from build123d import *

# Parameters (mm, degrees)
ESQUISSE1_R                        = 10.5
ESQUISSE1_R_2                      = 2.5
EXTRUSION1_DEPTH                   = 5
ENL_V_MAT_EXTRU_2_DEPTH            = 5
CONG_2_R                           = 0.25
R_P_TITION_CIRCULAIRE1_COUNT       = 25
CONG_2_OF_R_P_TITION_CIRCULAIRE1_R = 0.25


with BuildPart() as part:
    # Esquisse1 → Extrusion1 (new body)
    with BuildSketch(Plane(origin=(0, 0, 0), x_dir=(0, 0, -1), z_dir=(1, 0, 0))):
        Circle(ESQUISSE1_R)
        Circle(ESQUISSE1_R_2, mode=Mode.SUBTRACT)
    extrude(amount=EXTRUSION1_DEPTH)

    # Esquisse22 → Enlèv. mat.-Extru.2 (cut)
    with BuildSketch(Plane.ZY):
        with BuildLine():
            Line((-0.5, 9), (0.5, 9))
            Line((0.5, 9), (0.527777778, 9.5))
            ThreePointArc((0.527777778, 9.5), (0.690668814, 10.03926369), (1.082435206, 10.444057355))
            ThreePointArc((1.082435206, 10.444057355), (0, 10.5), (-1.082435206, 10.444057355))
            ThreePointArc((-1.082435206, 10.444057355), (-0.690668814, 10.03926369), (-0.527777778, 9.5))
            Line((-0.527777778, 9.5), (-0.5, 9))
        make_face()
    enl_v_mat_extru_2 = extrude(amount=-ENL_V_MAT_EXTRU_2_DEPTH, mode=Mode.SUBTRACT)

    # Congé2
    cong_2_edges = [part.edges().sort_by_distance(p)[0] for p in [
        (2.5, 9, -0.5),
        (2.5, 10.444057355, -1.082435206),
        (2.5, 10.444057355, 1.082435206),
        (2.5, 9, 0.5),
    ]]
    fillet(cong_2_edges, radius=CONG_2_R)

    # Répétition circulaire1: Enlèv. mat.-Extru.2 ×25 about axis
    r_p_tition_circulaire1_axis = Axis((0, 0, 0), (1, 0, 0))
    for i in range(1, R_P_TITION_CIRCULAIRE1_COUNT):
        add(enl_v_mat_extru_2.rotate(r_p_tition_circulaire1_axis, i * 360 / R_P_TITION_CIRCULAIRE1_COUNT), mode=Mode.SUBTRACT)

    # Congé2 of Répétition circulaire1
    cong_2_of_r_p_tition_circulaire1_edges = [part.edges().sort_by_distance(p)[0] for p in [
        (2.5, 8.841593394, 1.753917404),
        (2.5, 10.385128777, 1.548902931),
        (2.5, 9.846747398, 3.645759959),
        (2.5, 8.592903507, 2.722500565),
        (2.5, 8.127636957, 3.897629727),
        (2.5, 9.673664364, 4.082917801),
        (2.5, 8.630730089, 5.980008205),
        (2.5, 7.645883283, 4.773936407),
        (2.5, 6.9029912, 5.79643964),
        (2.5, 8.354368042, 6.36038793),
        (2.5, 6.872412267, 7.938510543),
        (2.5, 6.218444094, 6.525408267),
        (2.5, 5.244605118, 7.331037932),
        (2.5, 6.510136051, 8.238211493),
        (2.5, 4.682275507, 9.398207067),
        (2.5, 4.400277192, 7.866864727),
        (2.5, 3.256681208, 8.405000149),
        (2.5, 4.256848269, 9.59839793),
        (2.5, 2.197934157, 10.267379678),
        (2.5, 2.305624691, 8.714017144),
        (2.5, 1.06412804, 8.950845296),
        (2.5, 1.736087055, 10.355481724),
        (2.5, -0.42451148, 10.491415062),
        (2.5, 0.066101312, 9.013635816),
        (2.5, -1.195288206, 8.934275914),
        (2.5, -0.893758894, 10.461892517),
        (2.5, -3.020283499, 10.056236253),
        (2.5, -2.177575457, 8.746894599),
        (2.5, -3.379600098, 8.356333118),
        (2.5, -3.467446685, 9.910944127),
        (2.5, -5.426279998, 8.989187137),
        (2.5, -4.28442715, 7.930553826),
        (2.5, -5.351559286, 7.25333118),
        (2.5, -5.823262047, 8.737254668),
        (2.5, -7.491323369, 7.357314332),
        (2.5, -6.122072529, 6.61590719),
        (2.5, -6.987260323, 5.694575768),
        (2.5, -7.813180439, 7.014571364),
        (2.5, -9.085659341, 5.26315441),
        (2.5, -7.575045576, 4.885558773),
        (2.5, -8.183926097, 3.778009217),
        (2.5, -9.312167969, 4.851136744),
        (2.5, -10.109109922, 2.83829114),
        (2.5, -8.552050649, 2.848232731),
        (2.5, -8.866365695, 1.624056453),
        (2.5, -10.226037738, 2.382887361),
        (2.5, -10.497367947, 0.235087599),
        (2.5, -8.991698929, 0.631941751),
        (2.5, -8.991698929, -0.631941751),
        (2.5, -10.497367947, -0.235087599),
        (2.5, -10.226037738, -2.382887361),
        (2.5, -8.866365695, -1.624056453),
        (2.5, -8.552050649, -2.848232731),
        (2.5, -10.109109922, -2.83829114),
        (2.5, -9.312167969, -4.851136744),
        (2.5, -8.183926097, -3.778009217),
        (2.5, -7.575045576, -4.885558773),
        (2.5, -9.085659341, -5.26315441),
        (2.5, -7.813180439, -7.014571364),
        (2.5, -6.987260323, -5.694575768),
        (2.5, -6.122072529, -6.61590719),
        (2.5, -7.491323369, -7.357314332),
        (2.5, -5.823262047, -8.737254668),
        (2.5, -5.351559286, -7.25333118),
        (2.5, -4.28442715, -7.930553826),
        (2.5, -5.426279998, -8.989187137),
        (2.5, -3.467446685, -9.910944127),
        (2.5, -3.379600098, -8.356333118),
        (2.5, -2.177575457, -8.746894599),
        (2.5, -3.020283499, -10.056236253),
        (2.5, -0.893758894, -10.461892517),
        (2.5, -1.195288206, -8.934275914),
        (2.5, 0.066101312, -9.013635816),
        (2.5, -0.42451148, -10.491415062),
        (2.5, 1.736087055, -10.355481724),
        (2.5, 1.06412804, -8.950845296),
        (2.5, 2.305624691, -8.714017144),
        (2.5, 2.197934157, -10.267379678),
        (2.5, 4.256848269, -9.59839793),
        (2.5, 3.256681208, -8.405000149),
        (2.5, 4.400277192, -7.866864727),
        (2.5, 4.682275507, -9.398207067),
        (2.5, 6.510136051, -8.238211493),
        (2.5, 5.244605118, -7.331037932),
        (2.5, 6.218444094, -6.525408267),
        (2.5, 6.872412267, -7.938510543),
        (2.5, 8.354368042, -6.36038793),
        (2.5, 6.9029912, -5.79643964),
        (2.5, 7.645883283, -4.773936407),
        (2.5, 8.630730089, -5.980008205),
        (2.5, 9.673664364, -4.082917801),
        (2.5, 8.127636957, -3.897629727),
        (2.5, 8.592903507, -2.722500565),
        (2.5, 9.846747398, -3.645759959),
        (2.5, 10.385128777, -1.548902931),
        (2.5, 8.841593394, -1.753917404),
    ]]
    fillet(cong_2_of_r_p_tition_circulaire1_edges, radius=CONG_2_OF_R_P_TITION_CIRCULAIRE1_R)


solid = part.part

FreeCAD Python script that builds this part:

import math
import FreeCAD as App
import Part
import Sketcher


def edges_at(feature, points):
    """Names of the edges that pass closest to the given points."""
    edges = feature.Shape.Edges
    near = lambda p: min(range(len(edges)), key=lambda i: edges[i].distToShape(Part.Vertex(*p))[0])
    return sorted({f"Edge{near(p) + 1}" for p in points})

doc = App.newDocument("Part")
body = doc.addObject("PartDesign::Body", "Body")

# Sketch on YZ plane
sketch1 = body.newObject("Sketcher::SketchObject", "Sketch")
sketch1.AttachmentSupport = (doc.getObject("YZ_Plane"), [""])
sketch1.MapMode = "FlatFace"
sketch1.addGeometry([
    Part.Circle(App.Vector(0, 0, 0), App.Vector(0, 0, 1), 10.5),
    Part.Circle(App.Vector(0, 0, 0), App.Vector(0, 0, 1), 2.5),
], False)
sketch1.addConstraint([
    Sketcher.Constraint("Coincident", 0, 3, -1, 1),
    Sketcher.Constraint("Coincident", 1, 3, -1, 1),
    Sketcher.Constraint("Diameter", 0, 21.0),
    Sketcher.Constraint("Diameter", 1, 5.0),
])
pad1 = body.newObject("PartDesign::Pad", "Pad")
pad1.Profile = sketch1
pad1.Length = 5

# Sketch on YZ plane
sketch2 = body.newObject("Sketcher::SketchObject", "Sketch001")
sketch2.AttachmentSupport = (doc.getObject("YZ_Plane"), [""])
sketch2.MapMode = "FlatFace"
sketch2.addGeometry([
    Part.LineSegment(App.Vector(9, -0.5, 0), App.Vector(9, 0.5, 0)),  # 0
    Part.LineSegment(App.Vector(9, 0.5, 0), App.Vector(9.5, 0.527778, 0)),  # 1
    Part.ArcOfCircle(Part.Circle(App.Vector(9.433688, 1.721392, 0), App.Vector(0, 0, 1), 1.195454), math.radians(-86.82017), math.radians(-32.309217)),  # 2
    Part.ArcOfCircle(Part.Circle(App.Vector(0, 0, 0), App.Vector(0, 0, 1), 10.5), math.radians(-5.917081), math.radians(5.917081)),  # 3
    Part.ArcOfCircle(Part.Circle(App.Vector(9.433688, -1.721392, 0), App.Vector(0, 0, 1), 1.195454), math.radians(32.309217), math.radians(86.82017)),  # 4
    Part.LineSegment(App.Vector(9.5, -0.527778, 0), App.Vector(9, -0.5, 0)),  # 5
], False)
sketch2.addConstraint([
    Sketcher.Constraint("Coincident", 0, 2, 1, 1),
    Sketcher.Constraint("Tangent", 1, 2, 2, 1),
    Sketcher.Constraint("Coincident", 2, 2, 3, 2),
    Sketcher.Constraint("Coincident", 3, 1, 4, 1),
    Sketcher.Constraint("Tangent", 4, 2, 5, 1),
    Sketcher.Constraint("Coincident", 5, 2, 0, 1),
    Sketcher.Constraint("Vertical", 0),
    Sketcher.Constraint("Coincident", 3, 3, -1, 1),
    Sketcher.Constraint("Equal", 2, 4),
    Sketcher.Constraint("Symmetric", 2, 3, 4, 3, -1),
    Sketcher.Constraint("Vertical", 1, 2, 4, 2),
    Sketcher.Constraint("Radius", 3, 10.5),
    Sketcher.Constraint("DistanceY", 0, 1, 0, 2, 1.0),
    Sketcher.Constraint("DistanceX", -1, 1, 0, 2, 9.0),
    Sketcher.Constraint("DistanceX", -1, 1, 1, 2, 9.5),
    Sketcher.Constraint("Radius", 2, 1.195454),
    Sketcher.Constraint("Distance", 1, 0.500771),
])
pocket1 = body.newObject("PartDesign::Pocket", "Pocket")
pocket1.Profile = sketch2
pocket1.Length = 5
pocket1.Reversed = True
doc.recompute()

fillet = body.newObject("PartDesign::Fillet", "Fillet")
fillet.Base = (pocket1, edges_at(pocket1, [
    (2.5, 9, -0.5),
    (2.5, 10.444, -1.082),
    (2.5, 10.444, 1.082),
    (2.5, 9, 0.5),
]))
fillet.Radius = 0.25
doc.recompute()

polarpattern = body.newObject("PartDesign::PolarPattern", "PolarPattern")
polarpattern.Originals = [pocket1]
polarpattern.Axis = (doc.getObject("X_Axis"), [""])
polarpattern.Angle = 360
polarpattern.Occurrences = 25
body.Tip = polarpattern
doc.recompute()

fillet2 = body.newObject("PartDesign::Fillet", "Fillet001")
fillet2.Base = (polarpattern, edges_at(polarpattern, [
    (2.5, 8.842, 1.754),
    (2.5, 10.385, 1.549),
    (2.5, 9.847, 3.646),
    (2.5, 8.593, 2.723),
    (2.5, 8.128, 3.898),
    (2.5, 9.674, 4.083),
    (2.5, 8.631, 5.98),
    (2.5, 7.646, 4.774),
    (2.5, 6.903, 5.796),
    (2.5, 8.354, 6.36),
    (2.5, 6.872, 7.939),
    (2.5, 6.218, 6.525),
    (2.5, 5.245, 7.331),
    (2.5, 6.51, 8.238),
    (2.5, 4.682, 9.398),
    (2.5, 4.4, 7.867),
    (2.5, 3.257, 8.405),
    (2.5, 4.257, 9.598),
    (2.5, 2.198, 10.267),
    (2.5, 2.306, 8.714),
    (2.5, 1.064, 8.951),
    (2.5, 1.736, 10.355),
    (2.5, -0.425, 10.491),
    (2.5, 0.066, 9.014),
    (2.5, -1.195, 8.934),
    (2.5, -0.894, 10.462),
    (2.5, -3.02, 10.056),
    (2.5, -2.178, 8.747),
    (2.5, -3.38, 8.356),
    (2.5, -3.467, 9.911),
    (2.5, -5.426, 8.989),
    (2.5, -4.284, 7.931),
    (2.5, -5.352, 7.253),
    (2.5, -5.823, 8.737),
    (2.5, -7.491, 7.357),
    (2.5, -6.122, 6.616),
    (2.5, -6.987, 5.695),
    (2.5, -7.813, 7.015),
    (2.5, -9.086, 5.263),
    (2.5, -7.575, 4.886),
    (2.5, -8.184, 3.778),
    (2.5, -9.312, 4.851),
    (2.5, -10.109, 2.838),
    (2.5, -8.552, 2.848),
    (2.5, -8.866, 1.624),
    (2.5, -10.226, 2.383),
    (2.5, -10.497, 0.235),
    (2.5, -8.992, 0.632),
    (2.5, -8.992, -0.632),
    (2.5, -10.497, -0.235),
    (2.5, -10.226, -2.383),
    (2.5, -8.866, -1.624),
    (2.5, -8.552, -2.848),
    (2.5, -10.109, -2.838),
    (2.5, -9.312, -4.851),
    (2.5, -8.184, -3.778),
    (2.5, -7.575, -4.886),
    (2.5, -9.086, -5.263),
    (2.5, -7.813, -7.015),
    (2.5, -6.987, -5.695),
    (2.5, -6.122, -6.616),
    (2.5, -7.491, -7.357),
    (2.5, -5.823, -8.737),
    (2.5, -5.352, -7.253),
    (2.5, -4.284, -7.931),
    (2.5, -5.426, -8.989),
    (2.5, -3.467, -9.911),
    (2.5, -3.38, -8.356),
    (2.5, -2.178, -8.747),
    (2.5, -3.02, -10.056),
    (2.5, -0.894, -10.462),
    (2.5, -1.195, -8.934),
    (2.5, 0.066, -9.014),
    (2.5, -0.425, -10.491),
    (2.5, 1.736, -10.355),
    (2.5, 1.064, -8.951),
    (2.5, 2.306, -8.714),
    (2.5, 2.198, -10.267),
    (2.5, 4.257, -9.598),
    (2.5, 3.257, -8.405),
    (2.5, 4.4, -7.867),
    (2.5, 4.682, -9.398),
    (2.5, 6.51, -8.238),
    (2.5, 5.245, -7.331),
    (2.5, 6.218, -6.525),
    (2.5, 6.872, -7.939),
    (2.5, 8.354, -6.36),
    (2.5, 6.903, -5.796),
    (2.5, 7.646, -4.774),
    (2.5, 8.631, -5.98),
    (2.5, 9.674, -4.083),
    (2.5, 8.128, -3.898),
    (2.5, 8.593, -2.723),
    (2.5, 9.847, -3.646),
    (2.5, 10.385, -1.549),
    (2.5, 8.842, -1.754),
]))
fillet2.Radius = 0.25

doc.recompute()
